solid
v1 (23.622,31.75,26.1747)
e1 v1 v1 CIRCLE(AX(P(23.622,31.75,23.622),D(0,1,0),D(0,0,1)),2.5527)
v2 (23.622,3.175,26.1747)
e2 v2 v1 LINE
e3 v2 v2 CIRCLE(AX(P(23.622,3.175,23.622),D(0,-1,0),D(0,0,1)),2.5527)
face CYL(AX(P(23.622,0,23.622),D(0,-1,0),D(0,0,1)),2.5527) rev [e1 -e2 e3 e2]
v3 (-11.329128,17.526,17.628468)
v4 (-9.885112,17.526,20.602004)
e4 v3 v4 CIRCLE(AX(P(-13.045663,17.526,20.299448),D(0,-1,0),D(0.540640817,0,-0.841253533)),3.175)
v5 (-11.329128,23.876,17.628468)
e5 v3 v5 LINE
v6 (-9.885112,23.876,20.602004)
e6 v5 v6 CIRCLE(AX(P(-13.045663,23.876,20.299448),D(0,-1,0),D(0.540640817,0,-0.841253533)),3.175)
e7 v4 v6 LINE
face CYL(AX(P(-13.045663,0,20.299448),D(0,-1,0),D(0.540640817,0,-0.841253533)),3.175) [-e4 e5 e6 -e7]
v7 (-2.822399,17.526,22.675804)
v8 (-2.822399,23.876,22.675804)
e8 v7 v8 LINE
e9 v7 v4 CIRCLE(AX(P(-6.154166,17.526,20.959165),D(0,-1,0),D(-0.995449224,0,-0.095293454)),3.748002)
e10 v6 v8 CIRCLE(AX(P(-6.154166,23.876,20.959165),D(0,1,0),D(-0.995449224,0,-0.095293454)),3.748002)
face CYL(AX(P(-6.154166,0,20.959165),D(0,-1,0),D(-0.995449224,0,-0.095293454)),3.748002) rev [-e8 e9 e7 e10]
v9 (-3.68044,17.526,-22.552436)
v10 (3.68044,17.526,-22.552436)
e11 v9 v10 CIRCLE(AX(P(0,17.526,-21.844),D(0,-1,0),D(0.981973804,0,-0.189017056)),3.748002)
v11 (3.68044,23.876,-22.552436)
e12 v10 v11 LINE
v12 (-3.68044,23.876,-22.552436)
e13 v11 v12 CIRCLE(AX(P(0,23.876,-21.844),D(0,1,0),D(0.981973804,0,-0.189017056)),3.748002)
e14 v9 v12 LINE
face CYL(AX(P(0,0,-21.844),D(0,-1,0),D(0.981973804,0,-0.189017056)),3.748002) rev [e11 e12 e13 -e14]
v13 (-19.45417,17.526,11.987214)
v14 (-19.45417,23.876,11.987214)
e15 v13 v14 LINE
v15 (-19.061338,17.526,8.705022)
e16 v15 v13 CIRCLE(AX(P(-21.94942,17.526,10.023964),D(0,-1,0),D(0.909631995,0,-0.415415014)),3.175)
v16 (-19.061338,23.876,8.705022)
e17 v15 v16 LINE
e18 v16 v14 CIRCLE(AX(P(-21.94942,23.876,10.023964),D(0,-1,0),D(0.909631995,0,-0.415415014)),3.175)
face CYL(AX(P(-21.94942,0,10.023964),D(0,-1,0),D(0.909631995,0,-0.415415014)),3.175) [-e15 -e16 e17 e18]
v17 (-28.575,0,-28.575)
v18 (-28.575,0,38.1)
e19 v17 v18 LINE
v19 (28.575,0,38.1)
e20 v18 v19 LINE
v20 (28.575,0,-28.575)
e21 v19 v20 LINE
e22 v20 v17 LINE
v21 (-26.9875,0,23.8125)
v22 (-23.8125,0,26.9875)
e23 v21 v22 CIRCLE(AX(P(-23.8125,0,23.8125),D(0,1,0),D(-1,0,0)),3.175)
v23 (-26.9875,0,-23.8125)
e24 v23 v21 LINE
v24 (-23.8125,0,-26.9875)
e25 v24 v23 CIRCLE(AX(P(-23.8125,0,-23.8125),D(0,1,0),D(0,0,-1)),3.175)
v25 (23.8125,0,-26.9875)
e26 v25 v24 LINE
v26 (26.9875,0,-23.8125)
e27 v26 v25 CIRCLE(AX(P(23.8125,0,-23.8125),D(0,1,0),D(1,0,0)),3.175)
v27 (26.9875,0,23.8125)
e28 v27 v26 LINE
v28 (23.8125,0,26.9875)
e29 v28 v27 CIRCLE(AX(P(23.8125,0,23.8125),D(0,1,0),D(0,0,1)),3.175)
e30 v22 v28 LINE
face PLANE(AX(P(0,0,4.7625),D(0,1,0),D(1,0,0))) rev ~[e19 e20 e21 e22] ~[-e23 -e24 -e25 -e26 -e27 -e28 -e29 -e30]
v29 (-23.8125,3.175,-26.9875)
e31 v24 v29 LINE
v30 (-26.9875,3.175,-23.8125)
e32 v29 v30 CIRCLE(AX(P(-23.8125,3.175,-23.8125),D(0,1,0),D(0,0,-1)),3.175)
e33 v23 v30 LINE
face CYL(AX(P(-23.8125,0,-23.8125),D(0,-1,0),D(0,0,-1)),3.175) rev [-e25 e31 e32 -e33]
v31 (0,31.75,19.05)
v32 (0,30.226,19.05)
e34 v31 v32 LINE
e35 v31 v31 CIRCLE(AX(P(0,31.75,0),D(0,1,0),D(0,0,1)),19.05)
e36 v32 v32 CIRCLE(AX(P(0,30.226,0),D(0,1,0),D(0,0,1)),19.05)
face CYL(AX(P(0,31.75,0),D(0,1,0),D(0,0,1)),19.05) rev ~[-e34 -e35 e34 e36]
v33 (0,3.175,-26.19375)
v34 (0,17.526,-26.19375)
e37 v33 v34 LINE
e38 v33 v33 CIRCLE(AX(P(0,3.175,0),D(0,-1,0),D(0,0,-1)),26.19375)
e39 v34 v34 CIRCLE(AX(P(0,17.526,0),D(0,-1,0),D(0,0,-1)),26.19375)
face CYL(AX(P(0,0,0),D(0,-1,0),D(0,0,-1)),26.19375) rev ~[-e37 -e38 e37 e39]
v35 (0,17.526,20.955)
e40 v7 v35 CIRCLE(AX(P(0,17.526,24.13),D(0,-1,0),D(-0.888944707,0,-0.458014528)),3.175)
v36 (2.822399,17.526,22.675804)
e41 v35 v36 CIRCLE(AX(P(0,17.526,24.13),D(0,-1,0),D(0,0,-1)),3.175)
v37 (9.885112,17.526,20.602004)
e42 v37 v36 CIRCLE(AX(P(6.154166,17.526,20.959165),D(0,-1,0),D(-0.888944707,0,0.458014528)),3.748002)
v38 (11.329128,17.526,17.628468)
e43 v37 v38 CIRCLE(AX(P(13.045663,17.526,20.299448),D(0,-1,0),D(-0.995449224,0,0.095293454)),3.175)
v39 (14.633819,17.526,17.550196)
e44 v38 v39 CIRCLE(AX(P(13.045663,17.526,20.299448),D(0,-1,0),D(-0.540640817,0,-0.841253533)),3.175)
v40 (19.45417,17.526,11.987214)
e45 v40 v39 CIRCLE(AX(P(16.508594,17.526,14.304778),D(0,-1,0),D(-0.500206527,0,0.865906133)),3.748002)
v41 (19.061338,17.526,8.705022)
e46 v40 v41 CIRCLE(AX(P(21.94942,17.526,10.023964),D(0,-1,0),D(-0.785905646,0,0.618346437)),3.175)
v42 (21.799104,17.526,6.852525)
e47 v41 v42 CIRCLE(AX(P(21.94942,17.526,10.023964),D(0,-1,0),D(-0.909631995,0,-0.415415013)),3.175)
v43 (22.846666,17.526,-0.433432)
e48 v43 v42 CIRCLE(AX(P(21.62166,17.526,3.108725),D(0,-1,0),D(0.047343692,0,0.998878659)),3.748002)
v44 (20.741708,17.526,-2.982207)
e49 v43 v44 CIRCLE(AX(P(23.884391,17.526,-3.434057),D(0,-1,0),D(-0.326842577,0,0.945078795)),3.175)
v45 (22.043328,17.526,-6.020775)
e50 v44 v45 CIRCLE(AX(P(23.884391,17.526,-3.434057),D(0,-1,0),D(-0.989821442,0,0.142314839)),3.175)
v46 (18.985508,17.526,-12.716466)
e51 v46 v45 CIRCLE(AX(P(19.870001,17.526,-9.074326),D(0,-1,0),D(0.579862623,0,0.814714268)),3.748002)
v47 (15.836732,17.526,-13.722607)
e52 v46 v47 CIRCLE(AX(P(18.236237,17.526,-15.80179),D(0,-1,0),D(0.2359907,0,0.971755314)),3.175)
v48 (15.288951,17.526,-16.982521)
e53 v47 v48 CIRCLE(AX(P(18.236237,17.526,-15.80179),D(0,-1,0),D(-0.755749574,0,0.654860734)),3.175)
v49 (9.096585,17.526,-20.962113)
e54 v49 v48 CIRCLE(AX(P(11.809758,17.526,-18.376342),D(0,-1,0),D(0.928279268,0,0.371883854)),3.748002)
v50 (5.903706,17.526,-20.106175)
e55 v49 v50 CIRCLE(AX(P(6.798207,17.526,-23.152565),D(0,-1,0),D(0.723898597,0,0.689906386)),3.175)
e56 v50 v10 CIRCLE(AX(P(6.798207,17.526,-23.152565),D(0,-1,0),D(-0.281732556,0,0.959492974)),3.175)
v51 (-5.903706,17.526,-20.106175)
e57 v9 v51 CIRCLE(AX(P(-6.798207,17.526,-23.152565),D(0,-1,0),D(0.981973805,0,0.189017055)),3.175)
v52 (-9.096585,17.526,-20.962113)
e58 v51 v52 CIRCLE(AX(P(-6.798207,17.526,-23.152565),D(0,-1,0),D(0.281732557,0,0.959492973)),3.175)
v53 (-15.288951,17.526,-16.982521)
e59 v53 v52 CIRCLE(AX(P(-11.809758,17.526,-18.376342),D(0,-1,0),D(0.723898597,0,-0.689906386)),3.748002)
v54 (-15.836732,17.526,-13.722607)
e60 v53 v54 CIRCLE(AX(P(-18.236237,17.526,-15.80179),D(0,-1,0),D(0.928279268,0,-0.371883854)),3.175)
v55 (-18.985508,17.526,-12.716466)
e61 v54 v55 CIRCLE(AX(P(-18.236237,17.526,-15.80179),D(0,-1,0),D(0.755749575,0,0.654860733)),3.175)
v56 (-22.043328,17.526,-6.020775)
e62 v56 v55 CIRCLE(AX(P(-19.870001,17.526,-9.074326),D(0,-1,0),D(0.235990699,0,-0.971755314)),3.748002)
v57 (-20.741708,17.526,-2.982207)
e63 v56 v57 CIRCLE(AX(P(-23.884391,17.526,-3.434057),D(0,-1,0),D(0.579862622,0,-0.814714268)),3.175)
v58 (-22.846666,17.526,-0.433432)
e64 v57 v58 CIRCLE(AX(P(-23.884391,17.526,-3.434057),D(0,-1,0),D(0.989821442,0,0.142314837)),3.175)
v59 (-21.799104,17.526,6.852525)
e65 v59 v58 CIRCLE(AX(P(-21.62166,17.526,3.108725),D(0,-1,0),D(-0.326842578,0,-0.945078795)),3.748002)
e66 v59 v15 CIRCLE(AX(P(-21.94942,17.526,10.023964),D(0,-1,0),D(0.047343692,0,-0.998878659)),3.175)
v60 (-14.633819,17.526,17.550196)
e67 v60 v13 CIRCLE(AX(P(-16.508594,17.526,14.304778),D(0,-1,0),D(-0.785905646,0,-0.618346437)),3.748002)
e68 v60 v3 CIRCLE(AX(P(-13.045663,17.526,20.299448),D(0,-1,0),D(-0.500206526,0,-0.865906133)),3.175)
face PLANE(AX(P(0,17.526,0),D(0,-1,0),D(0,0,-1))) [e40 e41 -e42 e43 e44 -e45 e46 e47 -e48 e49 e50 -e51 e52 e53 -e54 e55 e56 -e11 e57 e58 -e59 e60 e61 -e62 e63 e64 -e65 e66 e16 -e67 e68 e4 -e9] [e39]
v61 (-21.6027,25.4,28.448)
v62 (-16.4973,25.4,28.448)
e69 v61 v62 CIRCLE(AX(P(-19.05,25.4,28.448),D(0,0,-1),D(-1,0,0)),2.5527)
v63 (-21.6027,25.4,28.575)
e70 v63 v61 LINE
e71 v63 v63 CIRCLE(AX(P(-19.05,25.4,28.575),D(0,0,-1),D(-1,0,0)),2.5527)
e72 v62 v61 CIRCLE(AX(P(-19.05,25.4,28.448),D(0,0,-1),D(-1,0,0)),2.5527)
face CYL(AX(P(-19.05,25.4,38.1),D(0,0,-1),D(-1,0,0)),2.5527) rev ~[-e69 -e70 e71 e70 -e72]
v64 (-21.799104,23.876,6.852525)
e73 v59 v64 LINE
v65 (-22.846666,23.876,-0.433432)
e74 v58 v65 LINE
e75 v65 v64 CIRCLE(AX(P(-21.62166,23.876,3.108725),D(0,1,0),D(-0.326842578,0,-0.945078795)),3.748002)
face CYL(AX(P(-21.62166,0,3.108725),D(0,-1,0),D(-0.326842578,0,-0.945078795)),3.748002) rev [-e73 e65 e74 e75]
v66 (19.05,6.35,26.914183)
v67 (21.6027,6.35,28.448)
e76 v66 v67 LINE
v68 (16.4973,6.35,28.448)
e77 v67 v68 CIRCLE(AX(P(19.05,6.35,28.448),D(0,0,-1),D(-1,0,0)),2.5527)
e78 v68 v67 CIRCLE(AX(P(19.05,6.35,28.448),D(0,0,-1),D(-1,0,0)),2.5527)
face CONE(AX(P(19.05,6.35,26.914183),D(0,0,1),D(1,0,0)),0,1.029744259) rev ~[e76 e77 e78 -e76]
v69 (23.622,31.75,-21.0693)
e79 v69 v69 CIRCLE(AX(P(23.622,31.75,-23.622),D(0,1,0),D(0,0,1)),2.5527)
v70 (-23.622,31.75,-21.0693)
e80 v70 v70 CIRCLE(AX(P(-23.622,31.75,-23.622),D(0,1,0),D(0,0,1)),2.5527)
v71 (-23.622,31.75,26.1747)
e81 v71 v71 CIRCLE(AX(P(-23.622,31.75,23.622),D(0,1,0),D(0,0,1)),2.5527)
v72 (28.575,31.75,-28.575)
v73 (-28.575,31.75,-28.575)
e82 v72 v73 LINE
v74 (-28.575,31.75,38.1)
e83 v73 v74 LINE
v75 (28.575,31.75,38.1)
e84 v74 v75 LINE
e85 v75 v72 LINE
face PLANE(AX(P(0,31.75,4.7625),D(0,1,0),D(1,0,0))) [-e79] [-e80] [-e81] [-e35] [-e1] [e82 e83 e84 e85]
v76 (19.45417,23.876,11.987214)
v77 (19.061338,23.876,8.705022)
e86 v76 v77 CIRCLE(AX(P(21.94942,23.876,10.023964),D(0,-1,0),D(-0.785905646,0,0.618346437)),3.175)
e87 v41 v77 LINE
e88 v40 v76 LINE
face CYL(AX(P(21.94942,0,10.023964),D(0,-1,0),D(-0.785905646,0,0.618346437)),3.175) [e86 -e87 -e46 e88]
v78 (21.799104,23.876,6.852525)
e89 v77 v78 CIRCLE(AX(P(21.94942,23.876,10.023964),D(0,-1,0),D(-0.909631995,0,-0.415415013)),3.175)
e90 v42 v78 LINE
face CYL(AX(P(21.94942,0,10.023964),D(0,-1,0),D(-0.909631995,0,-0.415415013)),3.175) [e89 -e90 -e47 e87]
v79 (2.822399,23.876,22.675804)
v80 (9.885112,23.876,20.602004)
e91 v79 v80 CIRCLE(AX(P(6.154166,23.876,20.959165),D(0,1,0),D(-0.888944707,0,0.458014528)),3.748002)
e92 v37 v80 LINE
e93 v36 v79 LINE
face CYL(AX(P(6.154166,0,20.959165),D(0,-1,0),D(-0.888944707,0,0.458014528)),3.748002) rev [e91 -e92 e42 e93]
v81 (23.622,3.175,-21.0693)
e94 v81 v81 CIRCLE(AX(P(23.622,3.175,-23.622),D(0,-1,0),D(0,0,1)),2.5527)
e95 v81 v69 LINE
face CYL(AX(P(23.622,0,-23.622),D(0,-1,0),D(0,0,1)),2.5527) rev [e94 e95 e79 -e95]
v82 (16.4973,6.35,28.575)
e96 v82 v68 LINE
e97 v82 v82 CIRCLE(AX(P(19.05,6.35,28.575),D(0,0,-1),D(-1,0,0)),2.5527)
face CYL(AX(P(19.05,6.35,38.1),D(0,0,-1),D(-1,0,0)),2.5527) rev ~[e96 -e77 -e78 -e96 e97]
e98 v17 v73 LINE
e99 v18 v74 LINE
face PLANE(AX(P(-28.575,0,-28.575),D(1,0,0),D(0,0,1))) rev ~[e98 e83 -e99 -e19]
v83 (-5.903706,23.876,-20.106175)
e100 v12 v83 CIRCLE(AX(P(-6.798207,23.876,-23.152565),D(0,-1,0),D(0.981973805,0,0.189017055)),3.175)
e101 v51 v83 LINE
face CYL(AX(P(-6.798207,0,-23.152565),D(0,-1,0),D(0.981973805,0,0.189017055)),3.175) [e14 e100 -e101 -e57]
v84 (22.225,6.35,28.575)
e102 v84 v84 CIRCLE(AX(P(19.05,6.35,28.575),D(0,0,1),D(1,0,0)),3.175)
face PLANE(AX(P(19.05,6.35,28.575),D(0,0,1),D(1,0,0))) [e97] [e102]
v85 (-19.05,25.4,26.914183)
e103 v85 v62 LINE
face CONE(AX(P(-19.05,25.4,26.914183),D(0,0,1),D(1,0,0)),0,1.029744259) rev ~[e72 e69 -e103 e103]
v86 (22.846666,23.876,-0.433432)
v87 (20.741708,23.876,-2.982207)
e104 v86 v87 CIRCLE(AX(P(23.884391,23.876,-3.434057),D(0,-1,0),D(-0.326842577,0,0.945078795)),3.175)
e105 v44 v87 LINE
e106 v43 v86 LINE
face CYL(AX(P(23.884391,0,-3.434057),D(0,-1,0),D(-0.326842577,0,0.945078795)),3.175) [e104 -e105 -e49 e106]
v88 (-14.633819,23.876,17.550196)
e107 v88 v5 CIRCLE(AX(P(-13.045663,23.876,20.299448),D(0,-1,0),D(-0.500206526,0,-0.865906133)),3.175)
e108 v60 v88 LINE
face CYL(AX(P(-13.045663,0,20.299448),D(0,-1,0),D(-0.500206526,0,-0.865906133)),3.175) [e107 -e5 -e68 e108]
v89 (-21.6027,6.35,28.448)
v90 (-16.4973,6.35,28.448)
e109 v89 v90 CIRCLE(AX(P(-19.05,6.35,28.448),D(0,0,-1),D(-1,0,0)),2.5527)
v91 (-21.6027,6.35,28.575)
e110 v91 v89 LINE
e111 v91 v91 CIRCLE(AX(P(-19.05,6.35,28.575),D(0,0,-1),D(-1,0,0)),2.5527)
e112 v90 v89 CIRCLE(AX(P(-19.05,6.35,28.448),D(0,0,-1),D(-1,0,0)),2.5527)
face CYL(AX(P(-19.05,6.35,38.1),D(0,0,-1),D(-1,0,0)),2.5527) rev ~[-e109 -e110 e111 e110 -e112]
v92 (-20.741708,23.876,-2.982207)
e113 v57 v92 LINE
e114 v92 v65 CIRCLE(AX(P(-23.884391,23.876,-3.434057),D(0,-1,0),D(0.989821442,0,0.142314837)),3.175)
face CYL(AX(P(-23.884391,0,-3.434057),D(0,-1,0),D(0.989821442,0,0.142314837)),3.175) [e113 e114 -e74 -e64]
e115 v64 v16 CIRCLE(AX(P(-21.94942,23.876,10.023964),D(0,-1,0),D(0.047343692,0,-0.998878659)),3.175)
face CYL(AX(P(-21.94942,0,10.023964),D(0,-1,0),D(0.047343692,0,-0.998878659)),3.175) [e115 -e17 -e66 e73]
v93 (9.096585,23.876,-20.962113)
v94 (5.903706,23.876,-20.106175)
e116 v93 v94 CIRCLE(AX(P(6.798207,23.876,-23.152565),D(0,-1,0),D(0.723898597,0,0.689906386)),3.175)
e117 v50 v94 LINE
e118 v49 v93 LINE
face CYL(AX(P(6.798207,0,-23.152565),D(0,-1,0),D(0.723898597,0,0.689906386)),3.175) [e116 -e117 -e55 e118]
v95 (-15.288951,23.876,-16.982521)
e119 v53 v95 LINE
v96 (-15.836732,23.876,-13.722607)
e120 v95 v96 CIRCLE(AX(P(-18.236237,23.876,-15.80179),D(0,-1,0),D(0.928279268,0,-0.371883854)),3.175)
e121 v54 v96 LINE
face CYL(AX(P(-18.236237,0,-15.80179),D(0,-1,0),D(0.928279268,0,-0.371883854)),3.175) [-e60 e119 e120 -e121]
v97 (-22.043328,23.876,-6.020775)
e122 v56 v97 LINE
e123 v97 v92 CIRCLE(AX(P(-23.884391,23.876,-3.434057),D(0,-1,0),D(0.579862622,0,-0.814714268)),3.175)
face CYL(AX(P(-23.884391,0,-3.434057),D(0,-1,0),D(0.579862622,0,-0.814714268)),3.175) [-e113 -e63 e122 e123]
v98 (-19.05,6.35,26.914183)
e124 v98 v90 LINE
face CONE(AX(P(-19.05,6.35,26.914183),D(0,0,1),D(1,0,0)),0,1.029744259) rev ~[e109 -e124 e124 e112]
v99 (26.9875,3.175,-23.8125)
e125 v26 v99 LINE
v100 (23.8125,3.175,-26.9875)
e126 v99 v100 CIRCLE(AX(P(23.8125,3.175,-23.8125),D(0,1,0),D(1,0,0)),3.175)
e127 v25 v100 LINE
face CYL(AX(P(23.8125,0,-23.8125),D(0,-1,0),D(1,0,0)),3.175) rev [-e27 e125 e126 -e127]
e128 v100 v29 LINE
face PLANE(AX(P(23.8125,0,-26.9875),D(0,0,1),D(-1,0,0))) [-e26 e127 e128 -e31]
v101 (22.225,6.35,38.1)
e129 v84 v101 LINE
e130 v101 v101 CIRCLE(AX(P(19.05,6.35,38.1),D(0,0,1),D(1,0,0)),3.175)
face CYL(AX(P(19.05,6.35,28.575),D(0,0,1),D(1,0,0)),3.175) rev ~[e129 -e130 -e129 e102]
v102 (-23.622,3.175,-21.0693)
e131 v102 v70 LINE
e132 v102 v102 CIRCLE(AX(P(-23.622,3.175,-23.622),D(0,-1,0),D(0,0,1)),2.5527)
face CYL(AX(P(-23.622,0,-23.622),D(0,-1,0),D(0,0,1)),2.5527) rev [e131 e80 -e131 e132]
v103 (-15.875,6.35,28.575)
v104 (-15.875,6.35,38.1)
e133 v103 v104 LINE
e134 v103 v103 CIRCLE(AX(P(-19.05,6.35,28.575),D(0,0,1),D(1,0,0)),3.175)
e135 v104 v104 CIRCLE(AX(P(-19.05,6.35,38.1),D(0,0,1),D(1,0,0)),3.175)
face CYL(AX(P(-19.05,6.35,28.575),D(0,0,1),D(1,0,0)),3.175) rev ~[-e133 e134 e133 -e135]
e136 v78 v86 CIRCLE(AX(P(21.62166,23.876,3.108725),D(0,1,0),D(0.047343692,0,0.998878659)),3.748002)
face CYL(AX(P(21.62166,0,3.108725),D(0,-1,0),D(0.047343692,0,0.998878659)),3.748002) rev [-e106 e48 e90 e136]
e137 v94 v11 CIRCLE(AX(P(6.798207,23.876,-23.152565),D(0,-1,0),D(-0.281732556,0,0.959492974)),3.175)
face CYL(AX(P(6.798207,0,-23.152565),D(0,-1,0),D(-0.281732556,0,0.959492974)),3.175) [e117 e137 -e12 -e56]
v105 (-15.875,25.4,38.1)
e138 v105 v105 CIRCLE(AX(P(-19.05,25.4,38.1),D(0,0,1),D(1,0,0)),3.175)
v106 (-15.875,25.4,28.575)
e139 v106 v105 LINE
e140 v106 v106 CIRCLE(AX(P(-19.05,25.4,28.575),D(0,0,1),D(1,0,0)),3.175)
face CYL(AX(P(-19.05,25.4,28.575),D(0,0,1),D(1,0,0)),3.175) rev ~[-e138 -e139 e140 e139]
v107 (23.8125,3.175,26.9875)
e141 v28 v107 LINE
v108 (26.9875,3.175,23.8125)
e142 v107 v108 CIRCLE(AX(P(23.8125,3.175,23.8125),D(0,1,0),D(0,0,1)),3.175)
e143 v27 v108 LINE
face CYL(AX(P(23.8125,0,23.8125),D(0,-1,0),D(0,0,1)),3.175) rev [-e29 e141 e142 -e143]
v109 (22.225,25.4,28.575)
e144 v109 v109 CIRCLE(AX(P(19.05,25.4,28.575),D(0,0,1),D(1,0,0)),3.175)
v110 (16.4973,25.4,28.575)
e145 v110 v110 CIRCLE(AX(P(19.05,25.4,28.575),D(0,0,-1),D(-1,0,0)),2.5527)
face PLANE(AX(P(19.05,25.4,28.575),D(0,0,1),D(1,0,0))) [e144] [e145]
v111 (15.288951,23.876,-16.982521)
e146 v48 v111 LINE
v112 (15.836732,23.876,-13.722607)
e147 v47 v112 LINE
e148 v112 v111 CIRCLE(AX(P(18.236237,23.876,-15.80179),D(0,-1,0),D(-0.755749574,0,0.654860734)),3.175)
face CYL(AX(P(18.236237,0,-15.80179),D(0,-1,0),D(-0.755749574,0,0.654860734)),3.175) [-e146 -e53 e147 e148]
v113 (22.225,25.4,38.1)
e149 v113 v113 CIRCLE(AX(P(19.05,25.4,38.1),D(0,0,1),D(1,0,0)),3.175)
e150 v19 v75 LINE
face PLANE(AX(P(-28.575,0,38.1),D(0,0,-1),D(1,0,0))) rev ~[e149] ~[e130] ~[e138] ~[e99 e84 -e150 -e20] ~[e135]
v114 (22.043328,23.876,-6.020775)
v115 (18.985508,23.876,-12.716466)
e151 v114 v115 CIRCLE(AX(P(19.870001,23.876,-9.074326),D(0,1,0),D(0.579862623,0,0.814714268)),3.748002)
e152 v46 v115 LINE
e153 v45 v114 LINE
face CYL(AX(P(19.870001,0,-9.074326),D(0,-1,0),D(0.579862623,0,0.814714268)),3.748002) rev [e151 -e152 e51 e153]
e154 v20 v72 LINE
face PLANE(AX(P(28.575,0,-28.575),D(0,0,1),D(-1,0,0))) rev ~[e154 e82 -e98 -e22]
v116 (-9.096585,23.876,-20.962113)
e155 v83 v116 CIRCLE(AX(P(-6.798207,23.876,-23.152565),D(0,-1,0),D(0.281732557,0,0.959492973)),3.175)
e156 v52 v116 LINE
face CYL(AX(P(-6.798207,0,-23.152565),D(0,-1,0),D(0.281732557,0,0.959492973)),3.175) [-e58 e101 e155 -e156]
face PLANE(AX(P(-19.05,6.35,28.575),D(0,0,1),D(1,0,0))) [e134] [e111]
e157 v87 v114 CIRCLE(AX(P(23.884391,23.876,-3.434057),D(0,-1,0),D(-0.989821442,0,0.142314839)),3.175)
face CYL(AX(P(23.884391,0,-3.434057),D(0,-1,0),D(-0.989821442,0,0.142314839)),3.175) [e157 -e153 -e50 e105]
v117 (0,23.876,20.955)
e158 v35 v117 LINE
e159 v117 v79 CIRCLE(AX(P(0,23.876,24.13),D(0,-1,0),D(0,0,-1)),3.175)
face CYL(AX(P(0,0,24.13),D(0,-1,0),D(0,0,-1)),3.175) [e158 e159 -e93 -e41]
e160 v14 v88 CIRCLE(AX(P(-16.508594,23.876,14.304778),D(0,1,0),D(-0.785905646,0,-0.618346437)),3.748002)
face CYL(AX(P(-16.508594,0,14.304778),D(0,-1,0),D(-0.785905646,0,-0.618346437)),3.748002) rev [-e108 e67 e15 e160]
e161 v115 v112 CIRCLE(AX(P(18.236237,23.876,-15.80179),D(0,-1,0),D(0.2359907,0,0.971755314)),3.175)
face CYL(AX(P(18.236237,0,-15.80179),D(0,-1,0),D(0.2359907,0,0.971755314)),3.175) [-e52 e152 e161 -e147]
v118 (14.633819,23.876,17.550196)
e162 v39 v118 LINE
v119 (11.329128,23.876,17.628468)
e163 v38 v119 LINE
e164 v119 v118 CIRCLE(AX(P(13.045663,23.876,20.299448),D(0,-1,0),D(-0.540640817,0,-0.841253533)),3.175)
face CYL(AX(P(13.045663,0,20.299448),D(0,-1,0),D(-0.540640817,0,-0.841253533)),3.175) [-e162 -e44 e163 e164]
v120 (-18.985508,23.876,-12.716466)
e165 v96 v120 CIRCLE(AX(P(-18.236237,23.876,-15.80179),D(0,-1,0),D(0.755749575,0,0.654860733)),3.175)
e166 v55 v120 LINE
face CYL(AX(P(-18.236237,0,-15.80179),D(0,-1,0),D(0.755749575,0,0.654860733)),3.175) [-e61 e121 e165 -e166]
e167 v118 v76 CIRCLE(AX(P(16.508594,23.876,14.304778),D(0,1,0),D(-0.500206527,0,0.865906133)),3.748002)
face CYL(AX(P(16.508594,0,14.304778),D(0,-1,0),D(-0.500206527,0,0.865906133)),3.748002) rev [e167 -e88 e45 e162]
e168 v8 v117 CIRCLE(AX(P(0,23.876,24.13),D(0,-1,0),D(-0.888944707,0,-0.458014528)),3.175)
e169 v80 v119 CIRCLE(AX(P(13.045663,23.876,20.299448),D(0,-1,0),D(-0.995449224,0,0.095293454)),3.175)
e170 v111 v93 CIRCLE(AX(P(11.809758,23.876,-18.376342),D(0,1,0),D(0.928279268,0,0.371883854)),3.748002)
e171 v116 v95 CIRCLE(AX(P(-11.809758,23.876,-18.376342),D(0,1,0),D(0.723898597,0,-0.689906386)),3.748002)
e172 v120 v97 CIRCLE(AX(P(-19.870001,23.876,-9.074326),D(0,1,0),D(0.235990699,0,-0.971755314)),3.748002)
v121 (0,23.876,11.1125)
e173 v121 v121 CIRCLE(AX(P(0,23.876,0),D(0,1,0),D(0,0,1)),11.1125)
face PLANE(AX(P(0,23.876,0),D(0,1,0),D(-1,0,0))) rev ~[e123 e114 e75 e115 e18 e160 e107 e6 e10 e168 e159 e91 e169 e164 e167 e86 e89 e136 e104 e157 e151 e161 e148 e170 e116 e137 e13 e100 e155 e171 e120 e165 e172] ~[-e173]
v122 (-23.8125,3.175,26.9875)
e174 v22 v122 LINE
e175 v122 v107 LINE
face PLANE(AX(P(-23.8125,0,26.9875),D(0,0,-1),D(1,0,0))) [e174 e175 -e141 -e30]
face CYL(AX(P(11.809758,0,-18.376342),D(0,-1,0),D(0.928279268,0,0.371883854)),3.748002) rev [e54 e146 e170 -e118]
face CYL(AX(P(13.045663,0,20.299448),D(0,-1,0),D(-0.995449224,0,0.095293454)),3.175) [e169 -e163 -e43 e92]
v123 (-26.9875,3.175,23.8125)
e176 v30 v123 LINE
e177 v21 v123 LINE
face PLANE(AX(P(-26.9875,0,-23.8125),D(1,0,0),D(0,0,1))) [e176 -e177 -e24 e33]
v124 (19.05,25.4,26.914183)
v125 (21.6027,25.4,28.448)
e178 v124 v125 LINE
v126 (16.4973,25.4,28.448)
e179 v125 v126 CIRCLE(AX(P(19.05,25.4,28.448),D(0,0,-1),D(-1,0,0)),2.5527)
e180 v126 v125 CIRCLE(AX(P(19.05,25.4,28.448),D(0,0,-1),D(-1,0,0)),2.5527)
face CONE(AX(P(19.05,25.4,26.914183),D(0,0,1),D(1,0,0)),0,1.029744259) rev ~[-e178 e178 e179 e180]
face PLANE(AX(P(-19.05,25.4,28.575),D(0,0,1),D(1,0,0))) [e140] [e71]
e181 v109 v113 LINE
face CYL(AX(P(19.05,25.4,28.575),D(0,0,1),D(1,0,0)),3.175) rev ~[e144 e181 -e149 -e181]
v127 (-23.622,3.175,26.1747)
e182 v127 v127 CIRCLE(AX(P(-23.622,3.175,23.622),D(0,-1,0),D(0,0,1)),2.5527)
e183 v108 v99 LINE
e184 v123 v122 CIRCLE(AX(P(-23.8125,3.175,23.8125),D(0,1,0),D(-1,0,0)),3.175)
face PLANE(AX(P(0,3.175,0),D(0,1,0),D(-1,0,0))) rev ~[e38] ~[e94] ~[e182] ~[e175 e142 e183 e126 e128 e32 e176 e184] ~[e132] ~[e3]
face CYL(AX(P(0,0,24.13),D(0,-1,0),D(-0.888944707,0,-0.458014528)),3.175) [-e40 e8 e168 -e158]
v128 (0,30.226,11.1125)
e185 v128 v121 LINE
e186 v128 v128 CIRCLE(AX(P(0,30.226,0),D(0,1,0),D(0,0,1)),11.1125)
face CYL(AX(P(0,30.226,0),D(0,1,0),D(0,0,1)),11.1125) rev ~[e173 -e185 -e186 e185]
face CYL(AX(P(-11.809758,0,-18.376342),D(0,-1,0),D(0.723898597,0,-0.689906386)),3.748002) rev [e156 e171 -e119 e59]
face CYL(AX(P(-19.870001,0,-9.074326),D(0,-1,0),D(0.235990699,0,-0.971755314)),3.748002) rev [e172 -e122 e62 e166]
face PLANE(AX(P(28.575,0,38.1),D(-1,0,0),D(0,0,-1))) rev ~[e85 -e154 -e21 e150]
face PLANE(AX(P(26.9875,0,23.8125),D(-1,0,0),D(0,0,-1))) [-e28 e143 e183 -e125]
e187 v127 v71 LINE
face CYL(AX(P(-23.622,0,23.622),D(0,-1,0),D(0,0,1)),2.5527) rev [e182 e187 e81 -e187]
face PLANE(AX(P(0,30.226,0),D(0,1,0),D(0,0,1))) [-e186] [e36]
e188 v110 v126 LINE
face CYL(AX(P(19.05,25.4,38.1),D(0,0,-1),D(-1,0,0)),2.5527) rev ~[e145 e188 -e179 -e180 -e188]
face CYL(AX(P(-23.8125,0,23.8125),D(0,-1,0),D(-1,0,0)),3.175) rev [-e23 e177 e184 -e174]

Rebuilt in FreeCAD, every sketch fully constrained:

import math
import FreeCAD as App
import Part
import Sketcher
Q = App.Units.Quantity

doc = App.newDocument("Part")
body = doc.addObject("PartDesign::Body", "Body")

# Sketch on XZ plane
sketch1 = body.newObject("Sketcher::SketchObject", "Sketch")
sketch1.AttachmentSupport = (doc.getObject("XZ_Plane"), [""])
sketch1.MapMode = "FlatFace"
sketch1.addGeometry([
    Part.LineSegment(App.Vector(28.6, -28.6, 0), App.Vector(-28.6, -28.6, 0)),  # 0
    Part.LineSegment(App.Vector(-28.6, -28.6, 0), App.Vector(-28.6, 38.1, 0)),  # 1
    Part.LineSegment(App.Vector(-28.6, 38.1, 0), App.Vector(28.6, 38.1, 0)),  # 2
    Part.LineSegment(App.Vector(28.6, 38.1, 0), App.Vector(28.6, -28.6, 0)),  # 3
    Part.Circle(App.Vector(-23.6, 23.6, 0), App.Vector(0, 0, 1), 2.6),  # 4
    Part.Circle(App.Vector(23.6, 23.6, 0), App.Vector(0, 0, 1), 2.6),  # 5
    Part.Circle(App.Vector(-23.6, -23.6, 0), App.Vector(0, 0, 1), 2.6),  # 6
    Part.Circle(App.Vector(23.6, -23.6, 0), App.Vector(0, 0, 1), 2.6),  # 7
], False)
sketch1.addConstraint([
    Sketcher.Constraint("Coincident", 0, 2, 1, 1),
    Sketcher.Constraint("Coincident", 1, 2, 2, 1),
    Sketcher.Constraint("Coincident", 2, 2, 3, 1),
    Sketcher.Constraint("Coincident", 3, 2, 0, 1),
    Sketcher.Constraint("Horizontal", 0),
    Sketcher.Constraint("Vertical", 1),
    Sketcher.Constraint("Horizontal", 2),
    Sketcher.Constraint("Vertical", 3),
    Sketcher.Constraint("Equal", 4, 5),
    Sketcher.Constraint("Equal", 5, 6),
    Sketcher.Constraint("Equal", 6, 7),
    Sketcher.Constraint("Symmetric", 5, 3, 6, 3, -1, 1),
    Sketcher.Constraint("Symmetric", 4, 3, 7, 3, -1, 1),
    Sketcher.Constraint("Symmetric", 4, 3, 5, 3, -2),
    Sketcher.Constraint("Diameter", 4, Q("0.201 in")),
    Sketcher.Constraint("DistanceX", 0, 2, 0, 1, Q("2.25 in")),
    Sketcher.Constraint("DistanceY", -1, 1, 1, 2, Q("1.5 in")),
    Sketcher.Constraint("DistanceY", 1, 1, 1, 2, Q("2.625 in")),
    Sketcher.Constraint("DistanceX", 4, 3, -1, 1, Q("0.93 in")),
    Sketcher.Constraint("DistanceY", -1, 1, 4, 3, Q("0.93 in")),
    Sketcher.Constraint("DistanceX", 0, 2, -1, 1, Q("1.125 in")),
])
pad1 = body.newObject("PartDesign::Pad", "Pad")
pad1.Profile = sketch1
pad1.Length = Q("1.25 in")
pad1.Reversed = True

# Sketch on XZ plane
sketch2 = body.newObject("Sketcher::SketchObject", "Sketch001")
sketch2.AttachmentSupport = (doc.getObject("XZ_Plane"), [""])
sketch2.MapMode = "FlatFace"
sketch2.AttachmentOffset = App.Placement(App.Vector(0, 0, -1.25 * 25.4), App.Rotation())
sketch2.addGeometry(Part.Circle(App.Vector(0, 0, 0), App.Vector(0, 0, 1), 19), False)
sketch2.addConstraint([
    Sketcher.Constraint("Coincident", 0, 3, -1, 1),
    Sketcher.Constraint("Diameter", 0, Q("1.5 in")),
])
pocket1 = body.newObject("PartDesign::Pocket", "Pocket")
pocket1.Profile = sketch2
pocket1.Length = Q("0.06 in")
pocket1.Reversed = True

# Sketch on XZ plane
sketch3 = body.newObject("Sketcher::SketchObject", "Sketch002")
sketch3.AttachmentSupport = (doc.getObject("XZ_Plane"), [""])
sketch3.MapMode = "FlatFace"
sketch3.AttachmentOffset = App.Placement(App.Vector(0, 0, -1.19 * 25.4), App.Rotation())
sketch3.addGeometry(Part.Circle(App.Vector(0, 0, 0), App.Vector(0, 0, 1), 11), False)
sketch3.addConstraint([
    Sketcher.Constraint("Coincident", 0, 3, -1, 1),
    Sketcher.Constraint("Diameter", 0, Q("0.875 in")),
])
pocket2 = body.newObject("PartDesign::Pocket", "Pocket001")
pocket2.Profile = sketch3
pocket2.Type = "ThroughAll"
pocket2.Reversed = True

# Sketch on XZ plane
sketch4 = body.newObject("Sketcher::SketchObject", "Sketch003")
sketch4.AttachmentSupport = (doc.getObject("XZ_Plane"), [""])
sketch4.MapMode = "FlatFace"
sketch4.addGeometry([
    Part.ArcOfCircle(Part.Circle(App.Vector(0, 24.13, 0), App.Vector(0, 0, 1), 3.175), math.radians(-90), math.radians(-27.259063)),  # 0
    Part.ArcOfCircle(Part.Circle(App.Vector(0, 24.13, 0), App.Vector(0, 0, 1), 3.175), math.radians(-152.740937), math.radians(-90)),  # 1
    Part.ArcOfCircle(Part.Circle(App.Vector(-6.154166, 20.959165, 0), App.Vector(0, 0, 1), 3.748002), math.radians(27.259063), math.radians(185.46821)),  # 2
    Part.ArcOfCircle(Part.Circle(App.Vector(-13.045663, 20.299448, 0), App.Vector(0, 0, 1), 3.175), math.radians(-57.272727), math.radians(5.46821)),  # 3
    Part.ArcOfCircle(Part.Circle(App.Vector(-13.045663, 20.299448, 0), App.Vector(0, 0, 1), 3.175), math.radians(-120.013665), math.radians(-57.272727)),  # 4
    Part.ArcOfCircle(Part.Circle(App.Vector(-16.508594, 14.304778, 0), App.Vector(0, 0, 1), 3.748002), math.radians(59.986335), math.radians(218.195483)),  # 5
    Part.ArcOfCircle(Part.Circle(App.Vector(-21.94942, 10.023964, 0), App.Vector(0, 0, 1), 3.175), math.radians(-24.545455), math.radians(38.195483)),  # 6
    Part.ArcOfCircle(Part.Circle(App.Vector(-21.94942, 10.023964, 0), App.Vector(0, 0, 1), 3.175), math.radians(-87.286392), math.radians(-24.545455)),  # 7
    Part.ArcOfCircle(Part.Circle(App.Vector(-21.62166, 3.108725, 0), App.Vector(0, 0, 1), 3.748002), math.radians(92.713608), math.radians(250.922756)),  # 8
    Part.ArcOfCircle(Part.Circle(App.Vector(-23.884391, -3.434057, 0), App.Vector(0, 0, 1), 3.175), math.radians(8.181818), math.radians(70.922756)),  # 9
    Part.ArcOfCircle(Part.Circle(App.Vector(-23.884391, -3.434057, 0), App.Vector(0, 0, 1), 3.175), math.radians(-54.559119), math.radians(8.181818)),  # 10
    Part.ArcOfCircle(Part.Circle(App.Vector(-19.870001, -9.074326, 0), App.Vector(0, 0, 1), 3.748002), math.radians(125.440881), math.radians(283.650028)),  # 11
    Part.ArcOfCircle(Part.Circle(App.Vector(-18.236237, -15.80179, 0), App.Vector(0, 0, 1), 3.175), math.radians(40.909091), math.radians(103.650028)),  # 12
    Part.ArcOfCircle(Part.Circle(App.Vector(-18.236237, -15.80179, 0), App.Vector(0, 0, 1), 3.175), math.radians(-21.831846), math.radians(40.909091)),  # 13
    Part.ArcOfCircle(Part.Circle(App.Vector(-11.809758, -18.376342, 0), App.Vector(0, 0, 1), 3.748002), math.radians(158.168154), math.radians(316.377301)),  # 14
    Part.ArcOfCircle(Part.Circle(App.Vector(-6.798207, -23.152565, 0), App.Vector(0, 0, 1), 3.175), math.radians(73.636364), math.radians(136.377301)),  # 15
    Part.ArcOfCircle(Part.Circle(App.Vector(-6.798207, -23.152565, 0), App.Vector(0, 0, 1), 3.175), math.radians(10.895426), math.radians(73.636364)),  # 16
    Part.ArcOfCircle(Part.Circle(App.Vector(0, -21.844, 0), App.Vector(0, 0, 1), 3.748002), math.radians(-169.104574), math.radians(-10.895426)),  # 17
    Part.ArcOfCircle(Part.Circle(App.Vector(6.798207, -23.152565, 0), App.Vector(0, 0, 1), 3.175), math.radians(106.363636), math.radians(169.104574)),  # 18
    Part.ArcOfCircle(Part.Circle(App.Vector(6.798207, -23.152565, 0), App.Vector(0, 0, 1), 3.175), math.radians(43.622699), math.radians(106.363636)),  # 19
    Part.ArcOfCircle(Part.Circle(App.Vector(11.809758, -18.376342, 0), App.Vector(0, 0, 1), 3.748002), math.radians(-136.377301), math.radians(21.831846)),  # 20
    Part.ArcOfCircle(Part.Circle(App.Vector(18.236237, -15.80179, 0), App.Vector(0, 0, 1), 3.175), math.radians(139.090909), math.radians(201.831846)),  # 21
    Part.ArcOfCircle(Part.Circle(App.Vector(18.236237, -15.80179, 0), App.Vector(0, 0, 1), 3.175), math.radians(76.349972), math.radians(139.090909)),  # 22
    Part.ArcOfCircle(Part.Circle(App.Vector(19.870001, -9.074326, 0), App.Vector(0, 0, 1), 3.748002), math.radians(-103.650028), math.radians(54.559119)),  # 23
    Part.ArcOfCircle(Part.Circle(App.Vector(23.884391, -3.434057, 0), App.Vector(0, 0, 1), 3.175), math.radians(171.818182), math.radians(234.559119)),  # 24
    Part.ArcOfCircle(Part.Circle(App.Vector(23.884391, -3.434057, 0), App.Vector(0, 0, 1), 3.175), math.radians(109.077244), math.radians(171.818182)),  # 25
    Part.ArcOfCircle(Part.Circle(App.Vector(21.62166, 3.108725, 0), App.Vector(0, 0, 1), 3.748002), math.radians(-70.922756), math.radians(87.286392)),  # 26
    Part.ArcOfCircle(Part.Circle(App.Vector(21.94942, 10.023964, 0), App.Vector(0, 0, 1), 3.175), math.radians(-155.454545), math.radians(-92.713608)),  # 27
    Part.ArcOfCircle(Part.Circle(App.Vector(21.94942, 10.023964, 0), App.Vector(0, 0, 1), 3.175), math.radians(141.804517), math.radians(204.545455)),  # 28
    Part.ArcOfCircle(Part.Circle(App.Vector(16.508594, 14.304778, 0), App.Vector(0, 0, 1), 3.748002), math.radians(-38.195483), math.radians(120.013665)),  # 29
    Part.ArcOfCircle(Part.Circle(App.Vector(13.045663, 20.299448, 0), App.Vector(0, 0, 1), 3.175), math.radians(-122.727273), math.radians(-59.986335)),  # 30
    Part.ArcOfCircle(Part.Circle(App.Vector(13.045663, 20.299448, 0), App.Vector(0, 0, 1), 3.175), math.radians(174.53179), math.radians(237.272727)),  # 31
    Part.ArcOfCircle(Part.Circle(App.Vector(6.154166, 20.959165, 0), App.Vector(0, 0, 1), 3.748002), math.radians(-5.46821), math.radians(152.740937)),  # 32
], False)
sketch4.addConstraint([
    Sketcher.Constraint("Coincident", 0, 1, 1, 2),
    Sketcher.Constraint("Coincident", 1, 1, 2, 1),
    Sketcher.Constraint("Coincident", 2, 2, 3, 2),
    Sketcher.Constraint("Coincident", 3, 1, 4, 2),
    Sketcher.Constraint("Coincident", 4, 1, 5, 1),
    Sketcher.Constraint("Coincident", 5, 2, 6, 2),
    Sketcher.Constraint("Coincident", 6, 1, 7, 2),
    Sketcher.Constraint("Coincident", 7, 1, 8, 1),
    Sketcher.Constraint("Coincident", 8, 2, 9, 2),
    Sketcher.Constraint("Coincident", 9, 1, 10, 2),
    Sketcher.Constraint("Coincident", 10, 1, 11, 1),
    Sketcher.Constraint("Coincident", 11, 2, 12, 2),
    Sketcher.Constraint("Coincident", 12, 1, 13, 2),
    Sketcher.Constraint("Coincident", 13, 1, 14, 1),
    Sketcher.Constraint("Coincident", 14, 2, 15, 2),
    Sketcher.Constraint("Coincident", 15, 1, 16, 2),
    Sketcher.Constraint("Coincident", 16, 1, 17, 1),
    Sketcher.Constraint("Coincident", 17, 2, 18, 2),
    Sketcher.Constraint("Coincident", 18, 1, 19, 2),
    Sketcher.Constraint("Coincident", 19, 1, 20, 1),
    Sketcher.Constraint("Coincident", 20, 2, 21, 2),
    Sketcher.Constraint("Coincident", 21, 1, 22, 2),
    Sketcher.Constraint("Coincident", 22, 1, 23, 1),
    Sketcher.Constraint("Coincident", 23, 2, 24, 2),
    Sketcher.Constraint("Coincident", 24, 1, 25, 2),
    Sketcher.Constraint("Coincident", 25, 1, 26, 1),
    Sketcher.Constraint("Coincident", 26, 2, 27, 2),
    Sketcher.Constraint("Coincident", 27, 1, 28, 2),
    Sketcher.Constraint("Coincident", 28, 1, 29, 1),
    Sketcher.Constraint("Coincident", 29, 2, 30, 2),
    Sketcher.Constraint("Coincident", 30, 1, 31, 2),
    Sketcher.Constraint("Coincident", 31, 1, 32, 1),
    Sketcher.Constraint("Coincident", 32, 2, 0, 2),
    Sketcher.Constraint("Coincident", 1, 3, 0, 3),
    Sketcher.Constraint("Coincident", 4, 3, 3, 3),
    Sketcher.Constraint("Coincident", 7, 3, 6, 3),
    Sketcher.Constraint("Coincident", 10, 3, 9, 3),
    Sketcher.Constraint("Coincident", 13, 3, 12, 3),
    Sketcher.Constraint("Coincident", 16, 3, 15, 3),
    Sketcher.Constraint("Coincident", 19, 3, 18, 3),
    Sketcher.Constraint("Coincident", 22, 3, 21, 3),
    Sketcher.Constraint("Coincident", 25, 3, 24, 3),
    Sketcher.Constraint("Coincident", 28, 3, 27, 3),
    Sketcher.Constraint("Coincident", 31, 3, 30, 3),
    Sketcher.Constraint("PointOnObject", 0, 3, -2),
    Sketcher.Constraint("PointOnObject", 17, 3, -2),
    Sketcher.Constraint("PointOnObject", 0, 1, -2),
    Sketcher.Constraint("Radius", 0, Q("0.125 in")),
    Sketcher.Constraint("Radius", 3, Q("0.125 in")),
    Sketcher.Constraint("Radius", 6, Q("0.125 in")),
    Sketcher.Constraint("Radius", 9, Q("0.125 in")),
    Sketcher.Constraint("Radius", 12, Q("0.125 in")),
    Sketcher.Constraint("Radius", 15, Q("0.125 in")),
    Sketcher.Constraint("Radius", 18, Q("0.125 in")),
    Sketcher.Constraint("Radius", 21, Q("0.125 in")),
    Sketcher.Constraint("Radius", 24, Q("0.125 in")),
    Sketcher.Constraint("Radius", 27, Q("0.125 in")),
    Sketcher.Constraint("Radius", 30, Q("0.125 in")),
    Sketcher.Constraint("DistanceY", -1, 1, 0, 3, Q("0.95 in")),
    Sketcher.Constraint("DistanceY", 17, 3, -1, 1, Q("0.86 in")),
    Sketcher.Constraint("Radius", 2, 3.748002),
    Sketcher.Constraint("Radius", 5, 3.748002),
    Sketcher.Constraint("Radius", 8, 3.748002),
    Sketcher.Constraint("Radius", 11, 3.748002),
    Sketcher.Constraint("Radius", 14, 3.748002),
    Sketcher.Constraint("Radius", 17, 3.748002),
    Sketcher.Constraint("Radius", 20, 3.748002),
    Sketcher.Constraint("Radius", 23, 3.748002),
    Sketcher.Constraint("Radius", 26, 3.748002),
    Sketcher.Constraint("Radius", 29, 3.748002),
    Sketcher.Constraint("Radius", 32, 3.748002),
    Sketcher.Constraint("DistanceX", 11, 3, -1, 1, 19.870001),
    Sketcher.Constraint("DistanceX", -1, 1, 23, 3, 19.870001),
    Sketcher.Constraint("DistanceX", 1, 1, -1, 1, 2.822399),
    Sketcher.Constraint("DistanceX", -1, 1, 32, 2, 2.822399),
    Sketcher.Constraint("DistanceX", 6, 3, -1, 1, 21.94942),
    Sketcher.Constraint("DistanceX", 8, 3, -1, 1, 21.62166),
    Sketcher.Constraint("DistanceX", 9, 3, -1, 1, 23.884391),
    Sketcher.Constraint("DistanceY", 12, 3, -1, 1, 15.80179),
    Sketcher.Constraint("DistanceX", 14, 3, -1, 1, 11.809758),
    Sketcher.Constraint("DistanceX", -1, 1, 20, 3, 11.809758),
    Sketcher.Constraint("DistanceY", 21, 3, -1, 1, 15.80179),
    Sketcher.Constraint("DistanceX", -1, 1, 24, 3, 23.884391),
    Sketcher.Constraint("DistanceX", -1, 1, 26, 3, 21.62166),
    Sketcher.Constraint("DistanceX", -1, 1, 27, 3, 21.94942),
    Sketcher.Constraint("DistanceX", 2, 2, -1, 1, 9.885112),
    Sketcher.Constraint("DistanceX", 3, 1, -1, 1, 11.329128),
    Sketcher.Constraint("DistanceX", 4, 1, -1, 1, 14.633819),
    Sketcher.Constraint("DistanceX", 5, 2, -1, 1, 19.45417),
    Sketcher.Constraint("DistanceX", 6, 1, -1, 1, 19.061338),
    Sketcher.Constraint("DistanceY", -1, 1, 6, 1, 8.705022),
    Sketcher.Constraint("DistanceY", 8, 2, -1, 1, 0.433432),
    Sketcher.Constraint("DistanceX", 9, 1, -1, 1, 20.741708),
    Sketcher.Constraint("DistanceX", 13, 1, -1, 1, 15.288951),
    Sketcher.Constraint("DistanceX", 16, 1, -1, 1, 3.68044),
    Sketcher.Constraint("DistanceX", -1, 1, 17, 2, 3.68044),
    Sketcher.Constraint("DistanceX", -1, 1, 20, 2, 15.288951),
    Sketcher.Constraint("DistanceY", 20, 2, -1, 1, 16.982521),
    Sketcher.Constraint("DistanceX", -1, 1, 24, 1, 20.741708),
    Sketcher.Constraint("DistanceY", 25, 1, -1, 1, 0.433432),
    Sketcher.Constraint("DistanceX", -1, 1, 27, 1, 19.061338),
    Sketcher.Constraint("DistanceX", -1, 1, 28, 1, 19.45417),
    Sketcher.Constraint("DistanceX", -1, 1, 29, 2, 14.633819),
    Sketcher.Constraint("DistanceX", -1, 1, 30, 1, 11.329128),
    Sketcher.Constraint("DistanceX", -1, 1, 31, 1, 9.885112),
    Sketcher.Constraint("DistanceX", 2, 3, -1, 1, 6.154166),
    Sketcher.Constraint("DistanceX", 3, 3, -1, 1, 13.045663),
    Sketcher.Constraint("DistanceX", -1, 1, 29, 3, 16.508594),
    Sketcher.Constraint("DistanceX", -1, 1, 30, 3, 13.045663),
    Sketcher.Constraint("DistanceX", 7, 1, -1, 1, 21.799104),
    Sketcher.Constraint("DistanceX", 10, 1, -1, 1, 22.043328),
    Sketcher.Constraint("DistanceX", 11, 2, -1, 1, 18.985508),
    Sketcher.Constraint("DistanceX", 12, 1, -1, 1, 15.836732),
    Sketcher.Constraint("DistanceX", 14, 2, -1, 1, 9.096585),
    Sketcher.Constraint("DistanceX", 15, 1, -1, 1, 5.903706),
    Sketcher.Constraint("DistanceX", -1, 1, 18, 1, 5.903706),
    Sketcher.Constraint("DistanceX", -1, 1, 19, 1, 9.096585),
    Sketcher.Constraint("DistanceX", -1, 1, 21, 1, 15.836732),
    Sketcher.Constraint("DistanceX", -1, 1, 22, 1, 18.985508),
    Sketcher.Constraint("DistanceX", -1, 1, 23, 2, 22.043328),
    Sketcher.Constraint("DistanceX", -1, 1, 26, 2, 21.799104),
])
pocket3 = body.newObject("PartDesign::Pocket", "Pocket002")
pocket3.Profile = sketch4
pocket3.Length = Q("0.94 in")

# Sketch on XZ plane
sketch5 = body.newObject("Sketcher::SketchObject", "Sketch004")
sketch5.AttachmentSupport = (doc.getObject("XZ_Plane"), [""])
sketch5.MapMode = "FlatFace"
sketch5.addGeometry(Part.Circle(App.Vector(0, 0, 0), App.Vector(0, 0, 1), 26), False)
sketch5.addConstraint([
    Sketcher.Constraint("Coincident", 0, 3, -1, 1),
    Sketcher.Constraint("Diameter", 0, Q("2.0625 in")),
])
pocket4 = body.newObject("PartDesign::Pocket", "Pocket003")
pocket4.Profile = sketch5
pocket4.Length = Q("0.69 in")

# Sketch on XZ plane
sketch6 = body.newObject("Sketcher::SketchObject", "Sketch005")
sketch6.AttachmentSupport = (doc.getObject("XZ_Plane"), [""])
sketch6.MapMode = "FlatFace"
sketch6.addGeometry([
    Part.LineSegment(App.Vector(23.8, 27, 0), App.Vector(-23.8, 27, 0)),  # 0
    Part.ArcOfCircle(Part.Circle(App.Vector(-23.8, 23.8, 0), App.Vector(0, 0, 1), 3.2), math.radians(90), math.radians(180)),  # 1
    Part.LineSegment(App.Vector(-27, 23.8, 0), App.Vector(-27, -23.8, 0)),  # 2
    Part.ArcOfCircle(Part.Circle(App.Vector(-23.8, -23.8, 0), App.Vector(0, 0, 1), 3.2), math.radians(-180), math.radians(-90)),  # 3
    Part.LineSegment(App.Vector(-23.8, -27, 0), App.Vector(23.8, -27, 0)),  # 4
    Part.ArcOfCircle(Part.Circle(App.Vector(23.8, -23.8, 0), App.Vector(0, 0, 1), 3.2), math.radians(-90), math.radians(0)),  # 5
    Part.LineSegment(App.Vector(27, -23.8, 0), App.Vector(27, 23.8, 0)),  # 6
    Part.ArcOfCircle(Part.Circle(App.Vector(23.8, 23.8, 0), App.Vector(0, 0, 1), 3.2), math.radians(0), math.radians(90)),  # 7
], False)
sketch6.addConstraint([
    Sketcher.Constraint("Tangent", 0, 2, 1, 1),
    Sketcher.Constraint("Tangent", 1, 2, 2, 1),
    Sketcher.Constraint("Tangent", 2, 2, 3, 1),
    Sketcher.Constraint("Tangent", 3, 2, 4, 1),
    Sketcher.Constraint("Tangent", 4, 2, 5, 1),
    Sketcher.Constraint("Tangent", 5, 2, 6, 1),
    Sketcher.Constraint("Tangent", 6, 2, 7, 1),
    Sketcher.Constraint("Tangent", 7, 2, 0, 1),
    Sketcher.Constraint("Horizontal", 0),
    Sketcher.Constraint("Vertical", 2),
    Sketcher.Constraint("Horizontal", 4),
    Sketcher.Constraint("Vertical", 6),
    Sketcher.Constraint("Equal", 1, 3),
    Sketcher.Constraint("Equal", 3, 5),
    Sketcher.Constraint("Equal", 5, 7),
    Sketcher.Constraint("Symmetric", 1, 3, 5, 3, -1, 1),
    Sketcher.Constraint("Equal", 4, 2),
    Sketcher.Constraint("Radius", 1, Q("0.125 in")),
    Sketcher.Constraint("DistanceY", 3, 3, 0, 2, Q("2 in")),
])
pocket5 = body.newObject("PartDesign::Pocket", "Pocket004")
pocket5.Profile = sketch6
pocket5.Length = Q("0.125 in")

# Sketch on XY plane
sketch7 = body.newObject("Sketcher::SketchObject", "Sketch006")
sketch7.AttachmentSupport = (doc.getObject("XY_Plane"), [""])
sketch7.MapMode = "FlatFace"
sketch7.AttachmentOffset = App.Placement(App.Vector(0, 0, 1.5 * 25.4), App.Rotation())
sketch7.addGeometry([
    Part.Circle(App.Vector(-19.1, 25.4, 0), App.Vector(0, 0, 1), 2.6),
    Part.Circle(App.Vector(19.1, 25.4, 0), App.Vector(0, 0, 1), 2.6),
    Part.Circle(App.Vector(19.1, 6.3, 0), App.Vector(0, 0, 1), 2.6),
    Part.Circle(App.Vector(-19.1, 6.3, 0), App.Vector(0, 0, 1), 2.6),
], False)
sketch7.addConstraint([
    Sketcher.Constraint("Equal", 0, 1),
    Sketcher.Constraint("Equal", 1, 2),
    Sketcher.Constraint("Equal", 2, 3),
    Sketcher.Constraint("Symmetric", 0, 3, 1, 3, -2),
    Sketcher.Constraint("Symmetric", 2, 3, 3, 3, -2),
    Sketcher.Constraint("Vertical", 1, 3, 2, 3),
    Sketcher.Constraint("Diameter", 0, Q("0.201 in")),
    Sketcher.Constraint("DistanceY", -1, 1, 0, 3, Q("1 in")),
    Sketcher.Constraint("DistanceX", 0, 3, 1, 3, Q("1.5 in")),
    Sketcher.Constraint("DistanceY", -1, 1, 2, 3, Q("0.25 in")),
])
doc.recompute()
hole = body.newObject("PartDesign::Hole", "Hole")
hole.Profile = sketch7
hole.ThreadType = "None"
hole.Diameter = Q("0.201 in")
hole.DepthType = "Dimension"
hole.Depth = Q("0.38 in")
hole.DrillPoint = "Angled"
hole.DrillPointAngle = 118
hole.HoleCutType = "Counterbore"
hole.HoleCutDiameter = Q("0.25 in")
hole.HoleCutDepth = Q("0.375 in")

doc.recompute()
